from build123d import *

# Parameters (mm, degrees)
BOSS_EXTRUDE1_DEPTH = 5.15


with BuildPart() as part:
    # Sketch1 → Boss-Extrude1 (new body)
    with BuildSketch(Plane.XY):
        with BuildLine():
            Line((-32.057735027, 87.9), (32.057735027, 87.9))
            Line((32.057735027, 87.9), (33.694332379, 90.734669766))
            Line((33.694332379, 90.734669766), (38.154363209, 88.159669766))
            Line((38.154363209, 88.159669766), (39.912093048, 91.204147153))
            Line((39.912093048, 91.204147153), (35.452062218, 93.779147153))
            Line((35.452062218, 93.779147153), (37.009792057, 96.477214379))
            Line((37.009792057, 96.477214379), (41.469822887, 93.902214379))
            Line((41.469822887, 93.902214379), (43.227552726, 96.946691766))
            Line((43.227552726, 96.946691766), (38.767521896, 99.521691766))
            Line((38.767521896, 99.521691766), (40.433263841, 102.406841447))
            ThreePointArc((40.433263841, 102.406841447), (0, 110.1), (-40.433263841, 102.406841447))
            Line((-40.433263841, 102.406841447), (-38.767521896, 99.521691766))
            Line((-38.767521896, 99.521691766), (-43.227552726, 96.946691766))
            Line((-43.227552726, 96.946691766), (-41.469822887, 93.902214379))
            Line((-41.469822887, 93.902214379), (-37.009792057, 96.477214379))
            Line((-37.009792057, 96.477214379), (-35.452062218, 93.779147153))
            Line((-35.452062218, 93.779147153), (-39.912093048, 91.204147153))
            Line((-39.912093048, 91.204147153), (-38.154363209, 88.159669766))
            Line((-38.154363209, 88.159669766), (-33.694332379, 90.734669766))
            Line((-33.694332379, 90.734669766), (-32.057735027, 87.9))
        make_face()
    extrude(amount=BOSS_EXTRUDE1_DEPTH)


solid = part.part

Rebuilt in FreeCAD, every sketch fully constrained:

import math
import FreeCAD as App
import Part
import Sketcher

V = App.Vector
Q = App.Units.Quantity

doc = App.newDocument("Part")
body = doc.addObject("PartDesign::Body", "Body")

sketch1 = body.newObject("Sketcher::SketchObject", "Sketch")
sketch1.AttachmentSupport = (doc.getObject("XY_Plane"), [""])
sketch1.MapMode = "FlatFace"
sketch1.addGeometry([
    Part.LineSegment(V(-32.1, 87.9, 0), V(32.1, 87.9, 0)),
    Part.LineSegment(V(32.1, 87.9, 0), V(33.7, 90.7, 0)),
    Part.LineSegment(V(33.7, 90.7, 0), V(38.2, 88.2, 0)),
    Part.LineSegment(V(38.2, 88.2, 0), V(39.9, 91.2, 0)),
    Part.LineSegment(V(39.9, 91.2, 0), V(35.5, 93.8, 0)),
    Part.LineSegment(V(35.5, 93.8, 0), V(37, 96.5, 0)),
    Part.LineSegment(V(37, 96.5, 0), V(41.5, 93.9, 0)),
    Part.LineSegment(V(41.5, 93.9, 0), V(43.2, 96.9, 0)),
    Part.LineSegment(V(43.2, 96.9, 0), V(38.8, 99.5, 0)),
    Part.LineSegment(V(38.8, 99.5, 0), V(40.4, 102.4, 0)),
    Part.ArcOfCircle(Part.Circle(V(0, 0, 0), V(0, 0, 1), 110.1), math.radians(68), math.radians(112)),
    Part.LineSegment(V(-40.4, 102.4, 0), V(-38.8, 99.5, 0)),
    Part.LineSegment(V(-38.8, 99.5, 0), V(-43.2, 96.9, 0)),
    Part.LineSegment(V(-43.2, 96.9, 0), V(-41.5, 93.9, 0)),
    Part.LineSegment(V(-41.5, 93.9, 0), V(-37, 96.5, 0)),
    Part.LineSegment(V(-37, 96.5, 0), V(-35.5, 93.8, 0)),
    Part.LineSegment(V(-35.5, 93.8, 0), V(-39.9, 91.2, 0)),
    Part.LineSegment(V(-39.9, 91.2, 0), V(-38.2, 88.2, 0)),
    Part.LineSegment(V(-38.2, 88.2, 0), V(-33.7, 90.7, 0)),
    Part.LineSegment(V(-33.7, 90.7, 0), V(-32.1, 87.9, 0)),
], False)
sketch1.addConstraint([
    Sketcher.Constraint("Coincident", 0, 2, 1, 1),
    Sketcher.Constraint("Coincident", 1, 2, 2, 1),
    Sketcher.Constraint("Coincident", 2, 2, 3, 1),
    Sketcher.Constraint("Coincident", 3, 2, 4, 1),
    Sketcher.Constraint("Coincident", 4, 2, 5, 1),
    Sketcher.Constraint("Coincident", 5, 2, 6, 1),
    Sketcher.Constraint("Coincident", 6, 2, 7, 1),
    Sketcher.Constraint("Coincident", 7, 2, 8, 1),
    Sketcher.Constraint("Coincident", 8, 2, 9, 1),
    Sketcher.Constraint("Coincident", 9, 2, 10, 1),
    Sketcher.Constraint("Coincident", 10, 2, 11, 1),
    Sketcher.Constraint("Coincident", 11, 2, 12, 1),
    Sketcher.Constraint("Coincident", 12, 2, 13, 1),
    Sketcher.Constraint("Coincident", 13, 2, 14, 1),
    Sketcher.Constraint("Coincident", 14, 2, 15, 1),
    Sketcher.Constraint("Coincident", 15, 2, 16, 1),
    Sketcher.Constraint("Coincident", 16, 2, 17, 1),
    Sketcher.Constraint("Coincident", 17, 2, 18, 1),
    Sketcher.Constraint("Coincident", 18, 2, 19, 1),
    Sketcher.Constraint("Coincident", 19, 2, 0, 1),
    Sketcher.Constraint("Horizontal", 0),
    Sketcher.Constraint("Coincident", 10, 3, -1, 1),
    Sketcher.Constraint("Symmetric", 8, 2, 11, 2, -2),
    Sketcher.Constraint("Symmetric", 7, 2, 12, 2, -2),
    Sketcher.Constraint("Symmetric", 6, 2, 13, 2, -2),
    Sketcher.Constraint("Symmetric", 5, 2, 14, 2, -2),
    Sketcher.Constraint("Symmetric", 4, 2, 15, 2, -2),
    Sketcher.Constraint("Symmetric", 3, 2, 16, 2, -2),
    Sketcher.Constraint("Symmetric", 2, 2, 17, 2, -2),
    Sketcher.Constraint("Symmetric", 1, 2, 18, 2, -2),
    Sketcher.Constraint("Perpendicular", 1, 2),
    Sketcher.Constraint("Perpendicular", 2, 3),
    Sketcher.Constraint("Perpendicular", 3, 4),
    Sketcher.Constraint("Perpendicular", 4, 5),
    Sketcher.Constraint("Perpendicular", 5, 6),
    Sketcher.Constraint("Perpendicular", 6, 7),
    Sketcher.Constraint("Perpendicular", 7, 8),
    Sketcher.Constraint("Perpendicular", 8, 9),
    Sketcher.Constraint("Perpendicular", 11, 12),
    Sketcher.Constraint("Perpendicular", 18, 19),
    Sketcher.Constraint("Equal", 2, 4),
    Sketcher.Constraint("Equal", 4, 6),
    Sketcher.Constraint("Equal", 3, 7),
    Sketcher.Constraint("Equal", 6, 8),
    Sketcher.Constraint("Radius", 10, 110.1),
    Sketcher.Constraint("Angle", 1, Q("60 deg")),
    Sketcher.Constraint("DistanceY", -1, 1, 0, 2, 87.9),
    Sketcher.Constraint("Distance", 2, 5.15),
    Sketcher.Constraint("DistanceX", 10, 2, 0, 2, 72.490999),
    Sketcher.Constraint("DistanceX", 4, 2, 2, 2, 2.702301),
    Sketcher.Constraint("DistanceX", 5, 2, 3, 2, 2.902301),
    Sketcher.Constraint("DistanceX", 4, 2, 9, 2, 4.981202),
])
pad1 = body.newObject("PartDesign::Pad", "Pad")
pad1.Profile = sketch1
pad1.Length = 5.15

doc.recompute()
